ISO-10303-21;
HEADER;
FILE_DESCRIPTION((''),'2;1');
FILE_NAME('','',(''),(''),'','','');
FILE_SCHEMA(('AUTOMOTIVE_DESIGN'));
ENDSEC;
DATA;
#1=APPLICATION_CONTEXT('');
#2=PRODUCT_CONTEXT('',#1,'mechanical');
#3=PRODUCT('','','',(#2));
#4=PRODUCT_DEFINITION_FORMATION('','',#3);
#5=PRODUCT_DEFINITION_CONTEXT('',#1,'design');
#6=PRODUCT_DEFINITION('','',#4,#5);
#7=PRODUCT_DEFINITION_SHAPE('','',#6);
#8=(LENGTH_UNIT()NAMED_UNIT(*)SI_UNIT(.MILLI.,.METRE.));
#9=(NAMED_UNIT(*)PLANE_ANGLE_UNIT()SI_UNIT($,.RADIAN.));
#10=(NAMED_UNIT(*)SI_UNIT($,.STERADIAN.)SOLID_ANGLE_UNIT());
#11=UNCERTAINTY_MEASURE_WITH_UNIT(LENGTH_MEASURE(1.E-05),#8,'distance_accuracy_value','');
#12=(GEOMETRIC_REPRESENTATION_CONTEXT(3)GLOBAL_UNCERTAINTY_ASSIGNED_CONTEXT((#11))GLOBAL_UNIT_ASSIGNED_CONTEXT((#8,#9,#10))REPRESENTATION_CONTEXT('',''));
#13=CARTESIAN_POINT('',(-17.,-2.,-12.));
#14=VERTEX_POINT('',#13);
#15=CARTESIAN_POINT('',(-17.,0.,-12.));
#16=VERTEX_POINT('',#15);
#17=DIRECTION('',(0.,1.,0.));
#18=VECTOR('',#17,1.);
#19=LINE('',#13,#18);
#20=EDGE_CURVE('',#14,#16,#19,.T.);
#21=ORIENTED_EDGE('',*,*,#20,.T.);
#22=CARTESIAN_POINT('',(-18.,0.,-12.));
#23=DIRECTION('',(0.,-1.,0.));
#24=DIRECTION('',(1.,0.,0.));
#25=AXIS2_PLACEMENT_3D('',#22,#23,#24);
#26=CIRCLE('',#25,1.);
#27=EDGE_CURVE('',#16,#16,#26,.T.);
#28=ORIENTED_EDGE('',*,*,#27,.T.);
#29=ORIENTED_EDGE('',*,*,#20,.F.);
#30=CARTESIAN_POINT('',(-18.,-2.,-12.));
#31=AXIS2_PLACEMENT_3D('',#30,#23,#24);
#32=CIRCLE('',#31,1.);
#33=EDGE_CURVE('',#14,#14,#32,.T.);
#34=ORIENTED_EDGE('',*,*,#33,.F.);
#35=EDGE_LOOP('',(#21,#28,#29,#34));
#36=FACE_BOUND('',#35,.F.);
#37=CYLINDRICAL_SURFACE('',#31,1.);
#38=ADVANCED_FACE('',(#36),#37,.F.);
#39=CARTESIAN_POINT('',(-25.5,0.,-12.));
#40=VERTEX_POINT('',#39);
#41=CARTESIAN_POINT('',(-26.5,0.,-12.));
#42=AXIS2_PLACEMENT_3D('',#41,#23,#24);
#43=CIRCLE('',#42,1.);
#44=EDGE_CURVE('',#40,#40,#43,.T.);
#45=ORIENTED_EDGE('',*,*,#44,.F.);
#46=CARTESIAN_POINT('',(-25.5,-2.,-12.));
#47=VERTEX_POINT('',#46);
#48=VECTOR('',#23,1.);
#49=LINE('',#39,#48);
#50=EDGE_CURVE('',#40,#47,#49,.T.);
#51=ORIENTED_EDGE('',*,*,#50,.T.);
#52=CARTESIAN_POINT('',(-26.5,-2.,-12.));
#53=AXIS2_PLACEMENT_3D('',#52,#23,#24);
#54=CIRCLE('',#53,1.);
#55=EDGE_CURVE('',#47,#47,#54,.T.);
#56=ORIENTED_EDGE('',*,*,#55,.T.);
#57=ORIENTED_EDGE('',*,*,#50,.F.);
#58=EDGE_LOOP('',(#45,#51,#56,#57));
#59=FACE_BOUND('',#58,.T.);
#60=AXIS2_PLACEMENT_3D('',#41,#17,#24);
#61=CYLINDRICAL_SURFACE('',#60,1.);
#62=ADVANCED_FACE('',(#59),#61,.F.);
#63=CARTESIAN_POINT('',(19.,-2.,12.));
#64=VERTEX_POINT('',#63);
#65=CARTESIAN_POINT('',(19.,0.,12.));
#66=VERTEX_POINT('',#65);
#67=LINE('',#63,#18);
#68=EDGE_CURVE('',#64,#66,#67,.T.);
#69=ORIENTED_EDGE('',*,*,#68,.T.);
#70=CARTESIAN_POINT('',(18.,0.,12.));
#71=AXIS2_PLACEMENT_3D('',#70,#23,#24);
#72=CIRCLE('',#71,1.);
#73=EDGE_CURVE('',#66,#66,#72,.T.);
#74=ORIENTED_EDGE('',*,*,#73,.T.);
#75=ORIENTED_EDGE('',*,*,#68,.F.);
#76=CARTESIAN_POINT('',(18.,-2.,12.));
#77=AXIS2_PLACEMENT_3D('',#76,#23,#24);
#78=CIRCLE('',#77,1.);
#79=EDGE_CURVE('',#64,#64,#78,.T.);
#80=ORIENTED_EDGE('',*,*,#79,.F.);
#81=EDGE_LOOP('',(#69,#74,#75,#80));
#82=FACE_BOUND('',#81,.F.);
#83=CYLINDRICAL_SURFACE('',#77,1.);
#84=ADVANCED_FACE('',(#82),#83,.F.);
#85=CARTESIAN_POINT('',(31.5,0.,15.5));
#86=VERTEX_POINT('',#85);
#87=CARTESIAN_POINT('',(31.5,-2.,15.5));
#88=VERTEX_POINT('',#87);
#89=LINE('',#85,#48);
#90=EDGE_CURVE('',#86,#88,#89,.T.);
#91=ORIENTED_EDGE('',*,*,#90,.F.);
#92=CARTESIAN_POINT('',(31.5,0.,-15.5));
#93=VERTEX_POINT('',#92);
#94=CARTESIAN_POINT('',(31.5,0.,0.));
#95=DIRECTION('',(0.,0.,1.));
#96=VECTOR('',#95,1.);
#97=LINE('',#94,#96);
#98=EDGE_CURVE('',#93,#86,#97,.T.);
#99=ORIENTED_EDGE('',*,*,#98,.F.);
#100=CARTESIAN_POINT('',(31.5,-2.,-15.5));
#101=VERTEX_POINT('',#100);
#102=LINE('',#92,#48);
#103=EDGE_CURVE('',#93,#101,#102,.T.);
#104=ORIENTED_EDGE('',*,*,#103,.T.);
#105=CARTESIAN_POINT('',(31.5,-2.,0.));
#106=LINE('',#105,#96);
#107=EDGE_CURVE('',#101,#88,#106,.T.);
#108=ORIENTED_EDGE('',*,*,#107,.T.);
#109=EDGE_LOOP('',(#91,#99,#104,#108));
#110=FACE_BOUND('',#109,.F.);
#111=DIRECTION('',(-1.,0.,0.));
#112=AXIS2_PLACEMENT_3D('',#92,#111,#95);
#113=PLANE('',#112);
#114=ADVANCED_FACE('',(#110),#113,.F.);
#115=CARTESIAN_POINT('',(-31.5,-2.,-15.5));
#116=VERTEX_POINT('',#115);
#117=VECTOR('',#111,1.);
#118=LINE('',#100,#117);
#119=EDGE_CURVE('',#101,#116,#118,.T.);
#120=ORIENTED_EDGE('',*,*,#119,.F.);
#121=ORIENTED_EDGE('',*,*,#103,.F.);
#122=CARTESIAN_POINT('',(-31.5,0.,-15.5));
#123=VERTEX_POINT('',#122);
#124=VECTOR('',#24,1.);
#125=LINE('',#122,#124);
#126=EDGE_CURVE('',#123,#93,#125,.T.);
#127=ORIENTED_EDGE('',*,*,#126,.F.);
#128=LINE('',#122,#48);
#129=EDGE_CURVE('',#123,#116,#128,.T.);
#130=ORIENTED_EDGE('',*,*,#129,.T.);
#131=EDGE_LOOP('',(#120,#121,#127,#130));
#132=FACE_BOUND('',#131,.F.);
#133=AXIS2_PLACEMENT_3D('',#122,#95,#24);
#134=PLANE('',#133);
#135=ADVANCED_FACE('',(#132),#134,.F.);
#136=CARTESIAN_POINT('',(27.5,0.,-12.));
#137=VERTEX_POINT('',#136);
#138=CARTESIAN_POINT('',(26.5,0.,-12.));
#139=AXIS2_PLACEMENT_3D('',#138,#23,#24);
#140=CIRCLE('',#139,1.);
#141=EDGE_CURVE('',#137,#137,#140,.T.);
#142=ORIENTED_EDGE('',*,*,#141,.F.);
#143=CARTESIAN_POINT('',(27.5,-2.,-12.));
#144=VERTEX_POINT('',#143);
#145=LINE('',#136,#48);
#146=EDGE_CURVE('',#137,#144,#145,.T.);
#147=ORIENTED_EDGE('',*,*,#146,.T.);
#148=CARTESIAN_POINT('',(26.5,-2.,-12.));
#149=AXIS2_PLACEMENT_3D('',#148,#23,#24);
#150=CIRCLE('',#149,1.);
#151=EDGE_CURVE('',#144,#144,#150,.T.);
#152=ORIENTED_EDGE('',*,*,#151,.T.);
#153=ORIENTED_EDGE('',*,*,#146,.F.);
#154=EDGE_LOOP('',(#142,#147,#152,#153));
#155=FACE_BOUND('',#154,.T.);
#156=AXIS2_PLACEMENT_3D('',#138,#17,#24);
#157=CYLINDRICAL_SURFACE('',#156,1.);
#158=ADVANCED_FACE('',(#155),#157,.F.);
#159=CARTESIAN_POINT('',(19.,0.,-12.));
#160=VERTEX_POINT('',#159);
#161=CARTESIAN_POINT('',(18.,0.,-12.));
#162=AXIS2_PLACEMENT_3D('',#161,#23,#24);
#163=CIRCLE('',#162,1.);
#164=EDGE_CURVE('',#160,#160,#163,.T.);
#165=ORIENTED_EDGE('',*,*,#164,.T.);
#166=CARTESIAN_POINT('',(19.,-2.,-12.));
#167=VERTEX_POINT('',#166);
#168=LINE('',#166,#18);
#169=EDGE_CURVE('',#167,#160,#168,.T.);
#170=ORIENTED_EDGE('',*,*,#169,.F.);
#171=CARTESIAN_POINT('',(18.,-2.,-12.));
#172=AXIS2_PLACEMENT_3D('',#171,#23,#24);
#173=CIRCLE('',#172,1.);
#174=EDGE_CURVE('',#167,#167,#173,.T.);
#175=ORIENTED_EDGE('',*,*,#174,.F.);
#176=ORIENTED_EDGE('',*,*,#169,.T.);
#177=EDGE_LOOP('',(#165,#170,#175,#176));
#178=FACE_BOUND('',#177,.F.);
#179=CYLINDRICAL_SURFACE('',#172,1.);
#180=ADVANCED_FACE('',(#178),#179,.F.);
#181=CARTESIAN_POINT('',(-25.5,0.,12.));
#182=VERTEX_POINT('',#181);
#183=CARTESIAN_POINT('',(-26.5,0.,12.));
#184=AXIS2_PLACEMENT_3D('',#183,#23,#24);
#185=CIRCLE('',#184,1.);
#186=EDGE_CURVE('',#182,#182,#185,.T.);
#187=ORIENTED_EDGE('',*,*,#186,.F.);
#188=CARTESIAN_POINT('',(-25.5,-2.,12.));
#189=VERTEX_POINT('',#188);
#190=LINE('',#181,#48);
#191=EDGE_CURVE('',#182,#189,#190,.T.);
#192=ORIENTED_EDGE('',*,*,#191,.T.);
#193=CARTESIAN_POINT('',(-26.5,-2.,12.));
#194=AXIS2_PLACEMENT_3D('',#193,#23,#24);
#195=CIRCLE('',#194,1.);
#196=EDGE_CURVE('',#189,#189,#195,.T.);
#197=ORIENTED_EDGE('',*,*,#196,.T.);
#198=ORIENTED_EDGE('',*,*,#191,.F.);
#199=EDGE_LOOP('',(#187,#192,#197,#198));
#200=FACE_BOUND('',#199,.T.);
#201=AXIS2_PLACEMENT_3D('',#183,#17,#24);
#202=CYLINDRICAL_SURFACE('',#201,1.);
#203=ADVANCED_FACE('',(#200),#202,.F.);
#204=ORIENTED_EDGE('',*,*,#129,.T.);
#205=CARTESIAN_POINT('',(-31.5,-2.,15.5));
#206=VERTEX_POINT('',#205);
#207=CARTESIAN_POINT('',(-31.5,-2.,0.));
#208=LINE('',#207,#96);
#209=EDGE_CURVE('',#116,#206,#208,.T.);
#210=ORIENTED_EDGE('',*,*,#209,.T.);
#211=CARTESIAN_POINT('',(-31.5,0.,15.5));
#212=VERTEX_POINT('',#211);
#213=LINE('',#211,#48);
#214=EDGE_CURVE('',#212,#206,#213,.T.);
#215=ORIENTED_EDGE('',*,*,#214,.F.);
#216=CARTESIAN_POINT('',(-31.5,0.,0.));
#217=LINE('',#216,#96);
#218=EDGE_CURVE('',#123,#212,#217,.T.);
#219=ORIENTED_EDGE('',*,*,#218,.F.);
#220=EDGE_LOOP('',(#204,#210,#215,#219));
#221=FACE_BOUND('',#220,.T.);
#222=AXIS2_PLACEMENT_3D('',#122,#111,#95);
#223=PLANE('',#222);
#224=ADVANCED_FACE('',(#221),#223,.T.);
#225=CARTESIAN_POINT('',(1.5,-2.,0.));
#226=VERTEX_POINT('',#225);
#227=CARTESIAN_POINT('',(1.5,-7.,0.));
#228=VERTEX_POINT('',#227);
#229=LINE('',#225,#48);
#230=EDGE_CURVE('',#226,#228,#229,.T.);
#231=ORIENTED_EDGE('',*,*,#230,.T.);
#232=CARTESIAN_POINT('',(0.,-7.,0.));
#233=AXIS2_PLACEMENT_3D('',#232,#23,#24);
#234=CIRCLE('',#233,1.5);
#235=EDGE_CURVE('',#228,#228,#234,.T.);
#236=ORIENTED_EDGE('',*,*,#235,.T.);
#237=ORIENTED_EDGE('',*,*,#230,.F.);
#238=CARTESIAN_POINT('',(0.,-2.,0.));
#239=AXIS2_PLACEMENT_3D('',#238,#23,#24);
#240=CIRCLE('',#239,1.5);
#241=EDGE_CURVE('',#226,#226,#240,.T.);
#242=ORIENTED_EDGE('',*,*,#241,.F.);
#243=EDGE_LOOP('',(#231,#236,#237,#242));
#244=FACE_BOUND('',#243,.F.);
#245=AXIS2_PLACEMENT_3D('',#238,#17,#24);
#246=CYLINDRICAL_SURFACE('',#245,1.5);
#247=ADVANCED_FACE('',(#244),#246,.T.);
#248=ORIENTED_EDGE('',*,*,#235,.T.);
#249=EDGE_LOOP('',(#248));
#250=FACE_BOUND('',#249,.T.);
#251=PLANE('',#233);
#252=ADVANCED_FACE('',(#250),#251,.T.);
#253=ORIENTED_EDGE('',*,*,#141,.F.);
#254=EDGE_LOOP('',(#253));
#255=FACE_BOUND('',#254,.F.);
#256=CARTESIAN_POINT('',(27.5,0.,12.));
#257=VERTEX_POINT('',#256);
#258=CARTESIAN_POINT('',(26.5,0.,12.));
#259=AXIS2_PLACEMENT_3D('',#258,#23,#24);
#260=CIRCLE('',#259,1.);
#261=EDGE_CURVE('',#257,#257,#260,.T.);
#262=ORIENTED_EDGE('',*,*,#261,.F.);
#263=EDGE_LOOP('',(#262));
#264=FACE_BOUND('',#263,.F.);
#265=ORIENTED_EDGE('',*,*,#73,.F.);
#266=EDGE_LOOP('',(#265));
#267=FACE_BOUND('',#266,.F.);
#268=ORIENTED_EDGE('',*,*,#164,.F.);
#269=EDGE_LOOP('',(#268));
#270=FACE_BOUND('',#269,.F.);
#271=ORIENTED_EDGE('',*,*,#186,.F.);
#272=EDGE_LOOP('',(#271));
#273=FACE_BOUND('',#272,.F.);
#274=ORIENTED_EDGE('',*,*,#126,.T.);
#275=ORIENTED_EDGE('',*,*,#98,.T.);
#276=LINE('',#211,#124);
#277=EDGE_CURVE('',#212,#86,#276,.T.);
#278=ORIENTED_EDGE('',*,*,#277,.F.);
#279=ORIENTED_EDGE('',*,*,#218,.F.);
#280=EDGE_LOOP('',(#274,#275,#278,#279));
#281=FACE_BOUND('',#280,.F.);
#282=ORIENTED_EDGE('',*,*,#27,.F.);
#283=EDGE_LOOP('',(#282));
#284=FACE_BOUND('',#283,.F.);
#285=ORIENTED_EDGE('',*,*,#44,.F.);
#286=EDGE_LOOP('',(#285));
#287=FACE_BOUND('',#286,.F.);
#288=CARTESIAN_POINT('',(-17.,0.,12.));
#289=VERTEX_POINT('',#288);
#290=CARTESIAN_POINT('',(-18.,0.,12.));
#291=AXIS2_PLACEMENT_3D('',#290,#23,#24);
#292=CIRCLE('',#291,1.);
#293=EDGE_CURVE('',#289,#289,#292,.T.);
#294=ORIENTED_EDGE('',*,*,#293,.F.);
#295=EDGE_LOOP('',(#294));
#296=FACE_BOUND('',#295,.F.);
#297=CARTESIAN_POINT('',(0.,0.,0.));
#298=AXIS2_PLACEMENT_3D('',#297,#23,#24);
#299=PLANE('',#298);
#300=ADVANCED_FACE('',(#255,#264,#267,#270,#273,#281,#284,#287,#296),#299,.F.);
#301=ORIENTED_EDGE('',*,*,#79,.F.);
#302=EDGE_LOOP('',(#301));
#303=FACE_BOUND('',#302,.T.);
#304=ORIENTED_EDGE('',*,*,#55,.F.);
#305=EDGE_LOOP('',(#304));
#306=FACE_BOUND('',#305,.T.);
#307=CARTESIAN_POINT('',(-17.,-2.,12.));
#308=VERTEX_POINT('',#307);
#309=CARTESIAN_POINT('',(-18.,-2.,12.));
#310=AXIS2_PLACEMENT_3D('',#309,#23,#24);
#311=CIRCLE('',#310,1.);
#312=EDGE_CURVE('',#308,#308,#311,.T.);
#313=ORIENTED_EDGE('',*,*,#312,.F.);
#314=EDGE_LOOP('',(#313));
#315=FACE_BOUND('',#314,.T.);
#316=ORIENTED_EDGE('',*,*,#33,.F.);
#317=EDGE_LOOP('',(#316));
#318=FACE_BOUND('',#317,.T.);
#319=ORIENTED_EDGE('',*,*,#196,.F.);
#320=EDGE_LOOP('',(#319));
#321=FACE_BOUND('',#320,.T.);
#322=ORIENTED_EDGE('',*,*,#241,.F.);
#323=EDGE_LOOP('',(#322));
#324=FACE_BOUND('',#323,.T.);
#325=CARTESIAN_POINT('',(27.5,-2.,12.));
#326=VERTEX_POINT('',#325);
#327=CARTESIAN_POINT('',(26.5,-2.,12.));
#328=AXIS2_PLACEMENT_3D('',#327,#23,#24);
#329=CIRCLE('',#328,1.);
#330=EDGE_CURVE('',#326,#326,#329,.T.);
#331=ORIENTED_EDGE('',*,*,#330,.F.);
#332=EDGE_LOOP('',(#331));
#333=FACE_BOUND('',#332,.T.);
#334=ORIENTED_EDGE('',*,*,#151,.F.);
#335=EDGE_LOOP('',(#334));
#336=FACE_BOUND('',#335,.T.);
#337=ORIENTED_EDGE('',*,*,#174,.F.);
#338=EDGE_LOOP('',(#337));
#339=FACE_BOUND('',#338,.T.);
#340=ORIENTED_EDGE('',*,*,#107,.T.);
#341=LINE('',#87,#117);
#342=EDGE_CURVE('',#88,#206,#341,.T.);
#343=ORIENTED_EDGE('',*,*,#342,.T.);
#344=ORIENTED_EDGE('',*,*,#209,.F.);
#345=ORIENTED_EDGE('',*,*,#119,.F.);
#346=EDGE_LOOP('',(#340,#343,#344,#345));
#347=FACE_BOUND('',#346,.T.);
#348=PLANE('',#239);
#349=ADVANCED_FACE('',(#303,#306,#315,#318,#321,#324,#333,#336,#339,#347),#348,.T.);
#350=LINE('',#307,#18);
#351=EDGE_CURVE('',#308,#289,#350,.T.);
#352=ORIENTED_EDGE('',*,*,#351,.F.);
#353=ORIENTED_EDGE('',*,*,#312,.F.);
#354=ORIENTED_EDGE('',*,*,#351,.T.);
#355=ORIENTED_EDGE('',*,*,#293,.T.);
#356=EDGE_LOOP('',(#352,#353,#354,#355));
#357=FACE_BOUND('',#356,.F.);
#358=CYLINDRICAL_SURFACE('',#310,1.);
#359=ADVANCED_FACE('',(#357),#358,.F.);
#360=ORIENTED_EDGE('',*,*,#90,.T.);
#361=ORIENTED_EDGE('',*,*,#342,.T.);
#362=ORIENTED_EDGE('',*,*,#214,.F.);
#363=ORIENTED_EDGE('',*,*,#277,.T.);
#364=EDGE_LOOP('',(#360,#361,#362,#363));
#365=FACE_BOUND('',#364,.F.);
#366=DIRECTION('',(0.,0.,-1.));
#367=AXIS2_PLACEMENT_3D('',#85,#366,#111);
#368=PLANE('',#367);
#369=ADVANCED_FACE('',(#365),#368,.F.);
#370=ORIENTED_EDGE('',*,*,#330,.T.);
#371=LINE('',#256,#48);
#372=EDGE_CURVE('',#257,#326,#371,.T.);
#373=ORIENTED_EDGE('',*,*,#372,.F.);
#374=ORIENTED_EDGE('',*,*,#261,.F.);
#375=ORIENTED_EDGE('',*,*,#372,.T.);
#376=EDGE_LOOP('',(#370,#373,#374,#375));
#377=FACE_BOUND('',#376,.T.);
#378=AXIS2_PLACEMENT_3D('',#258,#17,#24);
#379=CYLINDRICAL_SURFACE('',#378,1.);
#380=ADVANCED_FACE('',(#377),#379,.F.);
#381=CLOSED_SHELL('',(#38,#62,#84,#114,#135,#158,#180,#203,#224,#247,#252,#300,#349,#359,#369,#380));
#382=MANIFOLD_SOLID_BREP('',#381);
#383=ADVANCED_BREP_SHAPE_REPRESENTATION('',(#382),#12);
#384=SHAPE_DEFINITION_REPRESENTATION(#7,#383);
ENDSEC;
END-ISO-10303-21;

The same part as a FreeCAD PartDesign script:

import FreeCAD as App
import Part
import Sketcher
Q = App.Units.Quantity

doc = App.newDocument("Part")
body = doc.addObject("PartDesign::Body", "Body")

sketch1 = doc.addObject("Sketcher::SketchObject", "Sketch")
body.addObject(sketch1)
sketch1.AttachmentSupport = (doc.XZ_Plane, [""])
sketch1.MapMode = "FlatFace"
sketch1.addGeometry(Part.LineSegment(App.Vector(-22, 16, 0), App.Vector(-22, -16, 0)), False)
sketch1.addGeometry(Part.LineSegment(App.Vector(-22, -16, 0), App.Vector(22, -16, 0)), False)
sketch1.addGeometry(Part.LineSegment(App.Vector(22, -16, 0), App.Vector(22, 16, 0)), False)
sketch1.addGeometry(Part.LineSegment(App.Vector(22, 16, 0), App.Vector(-22, 16, 0)), False)
sketch1.addConstraint(Sketcher.Constraint("Coincident", 0, 2, 1, 1))
sketch1.addConstraint(Sketcher.Constraint("Coincident", 1, 2, 2, 1))
sketch1.addConstraint(Sketcher.Constraint("Coincident", 2, 2, 3, 1))
sketch1.addConstraint(Sketcher.Constraint("Coincident", 3, 2, 0, 1))
sketch1.addConstraint(Sketcher.Constraint("Vertical", 0))
sketch1.addConstraint(Sketcher.Constraint("Horizontal", 1))
sketch1.addConstraint(Sketcher.Constraint("Vertical", 2))
sketch1.addConstraint(Sketcher.Constraint("Horizontal", 3))
sketch1.addConstraint(Sketcher.Constraint("Symmetric", 0, 2, 2, 2, -1, 1))
sketch1.addConstraint(Sketcher.Constraint("DistanceX", 1, 1, 1, 2, Q("43 mm")))
sketch1.addConstraint(Sketcher.Constraint("DistanceY", 0, 2, 0, 1, Q("31 mm")))
pad1 = doc.addObject("PartDesign::Pad", "Pad")
body.addObject(pad1)
pad1.Profile = sketch1
pad1.Length = 2

sketch2 = doc.addObject("Sketcher::SketchObject", "Sketch001")
body.addObject(sketch2)
sketch2.AttachmentSupport = (doc.XZ_Plane, [""])
sketch2.MapMode = "FlatFace"
sketch2.AttachmentOffset = App.Placement(App.Vector(0, 0, 2), App.Rotation())
sketch2.addGeometry(Part.Circle(App.Vector(0, 0, 0), App.Vector(0, 0, 1), 1.5), False)
sketch2.addConstraint(Sketcher.Constraint("Coincident", 0, 3, -1, 1))
sketch2.addConstraint(Sketcher.Constraint("Diameter", 0, Q("3 mm")))
pad2 = doc.addObject("PartDesign::Pad", "Pad001")
body.addObject(pad2)
pad2.Profile = sketch2
pad2.Length = 5

sketch3 = doc.addObject("Sketcher::SketchObject", "Sketch002")
body.addObject(sketch3)
sketch3.AttachmentSupport = (doc.XZ_Plane, [""])
sketch3.MapMode = "FlatFace"
sketch3.AttachmentOffset = App.Placement(App.Vector(0, 0, 2), App.Rotation())
sketch3.addGeometry(Part.Circle(App.Vector(18, 12, 0), App.Vector(0, 0, 1), 1), False)
sketch3.addGeometry(Part.Circle(App.Vector(18, -12, 0), App.Vector(0, 0, 1), 1), False)
sketch3.addGeometry(Part.Circle(App.Vector(-18, 12, 0), App.Vector(0, 0, 1), 1), False)
sketch3.addGeometry(Part.Circle(App.Vector(-18, -12, 0), App.Vector(0, 0, 1), 1), False)
sketch3.addConstraint(Sketcher.Constraint("Equal", 0, 1))
sketch3.addConstraint(Sketcher.Constraint("Equal", 1, 2))
sketch3.addConstraint(Sketcher.Constraint("Equal", 2, 3))
sketch3.addConstraint(Sketcher.Constraint("Symmetric", 1, 3, 2, 3, -1, 1))
sketch3.addConstraint(Sketcher.Constraint("Symmetric", 0, 3, 3, 3, -1, 1))
sketch3.addConstraint(Sketcher.Constraint("Symmetric", 0, 3, 2, 3, -2))
sketch3.addConstraint(Sketcher.Constraint("Diameter", 0, Q("2 mm")))
sketch3.addConstraint(Sketcher.Constraint("DistanceX", -1, 1, 0, 3, Q("18 mm")))
sketch3.addConstraint(Sketcher.Constraint("DistanceY", -1, 1, 0, 3, Q("12 mm")))
pocket1 = doc.addObject("PartDesign::Pocket", "Pocket")
body.addObject(pocket1)
pocket1.Profile = sketch3
pocket1.Type = "ThroughAll"

sketch4 = doc.addObject("Sketcher::SketchObject", "Sketch003")
body.addObject(sketch4)
sketch4.AttachmentSupport = (doc.XZ_Plane, [""])
sketch4.MapMode = "FlatFace"
sketch4.addGeometry(Part.LineSegment(App.Vector(-31.5, -15.5, 0), App.Vector(31.5, -15.5, 0)), False)
sketch4.addGeometry(Part.LineSegment(App.Vector(31.5, -15.5, 0), App.Vector(31.5, 15.5, 0)), False)
sketch4.addGeometry(Part.LineSegment(App.Vector(31.5, 15.5, 0), App.Vector(-31.5, 15.5, 0)), False)
sketch4.addGeometry(Part.LineSegment(App.Vector(-31.5, 15.5, 0), App.Vector(-31.5, -15.5, 0)), False)
sketch4.addGeometry(Part.Circle(App.Vector(-26.5, -12, 0), App.Vector(0, 0, 1), 1), False)
sketch4.addGeometry(Part.Circle(App.Vector(26.5, -12, 0), App.Vector(0, 0, 1), 1), False)
sketch4.addGeometry(Part.Circle(App.Vector(-26.5, 12, 0), App.Vector(0, 0, 1), 1), False)
sketch4.addGeometry(Part.Circle(App.Vector(18, 12, 0), App.Vector(0, 0, 1), 1), False)
sketch4.addGeometry(Part.Circle(App.Vector(26.5, 12, 0), App.Vector(0, 0, 1), 1), False)
sketch4.addConstraint(Sketcher.Constraint("Coincident", 0, 2, 1, 1))
sketch4.addConstraint(Sketcher.Constraint("Coincident", 1, 2, 2, 1))
sketch4.addConstraint(Sketcher.Constraint("Coincident", 2, 2, 3, 1))
sketch4.addConstraint(Sketcher.Constraint("Coincident", 3, 2, 0, 1))
sketch4.addConstraint(Sketcher.Constraint("Horizontal", 0))
sketch4.addConstraint(Sketcher.Constraint("Vertical", 1))
sketch4.addConstraint(Sketcher.Constraint("Horizontal", 2))
sketch4.addConstraint(Sketcher.Constraint("Vertical", 3))
sketch4.addConstraint(Sketcher.Constraint("Equal", 4, 5))
sketch4.addConstraint(Sketcher.Constraint("Equal", 5, 6))
sketch4.addConstraint(Sketcher.Constraint("Equal", 6, 7))
sketch4.addConstraint(Sketcher.Constraint("Equal", 7, 8))
sketch4.addConstraint(Sketcher.Constraint("Symmetric", 5, 3, 6, 3, -1, 1))
sketch4.addConstraint(Sketcher.Constraint("Symmetric", 4, 3, 8, 3, -1, 1))
sketch4.addConstraint(Sketcher.Constraint("Symmetric", 0, 2, 2, 2, -1, 1))
sketch4.addConstraint(Sketcher.Constraint("Symmetric", 4, 3, 5, 3, -2))
sketch4.addConstraint(Sketcher.Constraint("Horizontal", 6, 3, 7, 3))
sketch4.addConstraint(Sketcher.Constraint("Diameter", 4, Q("2 mm")))
sketch4.addConstraint(Sketcher.Constraint("DistanceX", 0, 1, 0, 2, Q("63 mm")))
sketch4.addConstraint(Sketcher.Constraint("DistanceY", 1, 1, 1, 2, Q("31 mm")))
sketch4.addConstraint(Sketcher.Constraint("DistanceY", 4, 3, -1, 1, Q("12 mm")))
sketch4.addConstraint(Sketcher.Constraint("DistanceX", -1, 1, 7, 3, Q("18 mm")))
sketch4.addConstraint(Sketcher.Constraint("DistanceX", 4, 3, 5, 3, Q("53 mm")))
pad3 = doc.addObject("PartDesign::Pad", "Pad002")
body.addObject(pad3)
pad3.Profile = sketch4
pad3.Length = 2

sketch5 = doc.addObject("Sketcher::SketchObject", "Sketch004")
body.addObject(sketch5)
sketch5.AttachmentSupport = (doc.XZ_Plane, [""])
sketch5.MapMode = "FlatFace"
sketch5.AttachmentOffset = App.Placement(App.Vector(0, 0, 2), App.Rotation())
sketch5.addGeometry(Part.Circle(App.Vector(18, 12, 0), App.Vector(0, 0, 1), 1), False)
sketch5.addGeometry(Part.Circle(App.Vector(18, -12, 0), App.Vector(0, 0, 1), 1), False)
sketch5.addGeometry(Part.Circle(App.Vector(-18, 12, 0), App.Vector(0, 0, 1), 1), False)
sketch5.addGeometry(Part.Circle(App.Vector(-18, -12, 0), App.Vector(0, 0, 1), 1), False)
sketch5.addConstraint(Sketcher.Constraint("Equal", 0, 1))
sketch5.addConstraint(Sketcher.Constraint("Equal", 1, 2))
sketch5.addConstraint(Sketcher.Constraint("Equal", 2, 3))
sketch5.addConstraint(Sketcher.Constraint("Symmetric", 1, 3, 2, 3, -1, 1))
sketch5.addConstraint(Sketcher.Constraint("Symmetric", 0, 3, 3, 3, -1, 1))
sketch5.addConstraint(Sketcher.Constraint("Symmetric", 0, 3, 2, 3, -2))
sketch5.addConstraint(Sketcher.Constraint("Diameter", 0, Q("2 mm")))
sketch5.addConstraint(Sketcher.Constraint("DistanceX", -1, 1, 0, 3, Q("18 mm")))
sketch5.addConstraint(Sketcher.Constraint("DistanceY", -1, 1, 0, 3, Q("12 mm")))
pocket2 = doc.addObject("PartDesign::Pocket", "Pocket001")
body.addObject(pocket2)
pocket2.Profile = sketch5
pocket2.Type = "ThroughAll"

doc.recompute()
